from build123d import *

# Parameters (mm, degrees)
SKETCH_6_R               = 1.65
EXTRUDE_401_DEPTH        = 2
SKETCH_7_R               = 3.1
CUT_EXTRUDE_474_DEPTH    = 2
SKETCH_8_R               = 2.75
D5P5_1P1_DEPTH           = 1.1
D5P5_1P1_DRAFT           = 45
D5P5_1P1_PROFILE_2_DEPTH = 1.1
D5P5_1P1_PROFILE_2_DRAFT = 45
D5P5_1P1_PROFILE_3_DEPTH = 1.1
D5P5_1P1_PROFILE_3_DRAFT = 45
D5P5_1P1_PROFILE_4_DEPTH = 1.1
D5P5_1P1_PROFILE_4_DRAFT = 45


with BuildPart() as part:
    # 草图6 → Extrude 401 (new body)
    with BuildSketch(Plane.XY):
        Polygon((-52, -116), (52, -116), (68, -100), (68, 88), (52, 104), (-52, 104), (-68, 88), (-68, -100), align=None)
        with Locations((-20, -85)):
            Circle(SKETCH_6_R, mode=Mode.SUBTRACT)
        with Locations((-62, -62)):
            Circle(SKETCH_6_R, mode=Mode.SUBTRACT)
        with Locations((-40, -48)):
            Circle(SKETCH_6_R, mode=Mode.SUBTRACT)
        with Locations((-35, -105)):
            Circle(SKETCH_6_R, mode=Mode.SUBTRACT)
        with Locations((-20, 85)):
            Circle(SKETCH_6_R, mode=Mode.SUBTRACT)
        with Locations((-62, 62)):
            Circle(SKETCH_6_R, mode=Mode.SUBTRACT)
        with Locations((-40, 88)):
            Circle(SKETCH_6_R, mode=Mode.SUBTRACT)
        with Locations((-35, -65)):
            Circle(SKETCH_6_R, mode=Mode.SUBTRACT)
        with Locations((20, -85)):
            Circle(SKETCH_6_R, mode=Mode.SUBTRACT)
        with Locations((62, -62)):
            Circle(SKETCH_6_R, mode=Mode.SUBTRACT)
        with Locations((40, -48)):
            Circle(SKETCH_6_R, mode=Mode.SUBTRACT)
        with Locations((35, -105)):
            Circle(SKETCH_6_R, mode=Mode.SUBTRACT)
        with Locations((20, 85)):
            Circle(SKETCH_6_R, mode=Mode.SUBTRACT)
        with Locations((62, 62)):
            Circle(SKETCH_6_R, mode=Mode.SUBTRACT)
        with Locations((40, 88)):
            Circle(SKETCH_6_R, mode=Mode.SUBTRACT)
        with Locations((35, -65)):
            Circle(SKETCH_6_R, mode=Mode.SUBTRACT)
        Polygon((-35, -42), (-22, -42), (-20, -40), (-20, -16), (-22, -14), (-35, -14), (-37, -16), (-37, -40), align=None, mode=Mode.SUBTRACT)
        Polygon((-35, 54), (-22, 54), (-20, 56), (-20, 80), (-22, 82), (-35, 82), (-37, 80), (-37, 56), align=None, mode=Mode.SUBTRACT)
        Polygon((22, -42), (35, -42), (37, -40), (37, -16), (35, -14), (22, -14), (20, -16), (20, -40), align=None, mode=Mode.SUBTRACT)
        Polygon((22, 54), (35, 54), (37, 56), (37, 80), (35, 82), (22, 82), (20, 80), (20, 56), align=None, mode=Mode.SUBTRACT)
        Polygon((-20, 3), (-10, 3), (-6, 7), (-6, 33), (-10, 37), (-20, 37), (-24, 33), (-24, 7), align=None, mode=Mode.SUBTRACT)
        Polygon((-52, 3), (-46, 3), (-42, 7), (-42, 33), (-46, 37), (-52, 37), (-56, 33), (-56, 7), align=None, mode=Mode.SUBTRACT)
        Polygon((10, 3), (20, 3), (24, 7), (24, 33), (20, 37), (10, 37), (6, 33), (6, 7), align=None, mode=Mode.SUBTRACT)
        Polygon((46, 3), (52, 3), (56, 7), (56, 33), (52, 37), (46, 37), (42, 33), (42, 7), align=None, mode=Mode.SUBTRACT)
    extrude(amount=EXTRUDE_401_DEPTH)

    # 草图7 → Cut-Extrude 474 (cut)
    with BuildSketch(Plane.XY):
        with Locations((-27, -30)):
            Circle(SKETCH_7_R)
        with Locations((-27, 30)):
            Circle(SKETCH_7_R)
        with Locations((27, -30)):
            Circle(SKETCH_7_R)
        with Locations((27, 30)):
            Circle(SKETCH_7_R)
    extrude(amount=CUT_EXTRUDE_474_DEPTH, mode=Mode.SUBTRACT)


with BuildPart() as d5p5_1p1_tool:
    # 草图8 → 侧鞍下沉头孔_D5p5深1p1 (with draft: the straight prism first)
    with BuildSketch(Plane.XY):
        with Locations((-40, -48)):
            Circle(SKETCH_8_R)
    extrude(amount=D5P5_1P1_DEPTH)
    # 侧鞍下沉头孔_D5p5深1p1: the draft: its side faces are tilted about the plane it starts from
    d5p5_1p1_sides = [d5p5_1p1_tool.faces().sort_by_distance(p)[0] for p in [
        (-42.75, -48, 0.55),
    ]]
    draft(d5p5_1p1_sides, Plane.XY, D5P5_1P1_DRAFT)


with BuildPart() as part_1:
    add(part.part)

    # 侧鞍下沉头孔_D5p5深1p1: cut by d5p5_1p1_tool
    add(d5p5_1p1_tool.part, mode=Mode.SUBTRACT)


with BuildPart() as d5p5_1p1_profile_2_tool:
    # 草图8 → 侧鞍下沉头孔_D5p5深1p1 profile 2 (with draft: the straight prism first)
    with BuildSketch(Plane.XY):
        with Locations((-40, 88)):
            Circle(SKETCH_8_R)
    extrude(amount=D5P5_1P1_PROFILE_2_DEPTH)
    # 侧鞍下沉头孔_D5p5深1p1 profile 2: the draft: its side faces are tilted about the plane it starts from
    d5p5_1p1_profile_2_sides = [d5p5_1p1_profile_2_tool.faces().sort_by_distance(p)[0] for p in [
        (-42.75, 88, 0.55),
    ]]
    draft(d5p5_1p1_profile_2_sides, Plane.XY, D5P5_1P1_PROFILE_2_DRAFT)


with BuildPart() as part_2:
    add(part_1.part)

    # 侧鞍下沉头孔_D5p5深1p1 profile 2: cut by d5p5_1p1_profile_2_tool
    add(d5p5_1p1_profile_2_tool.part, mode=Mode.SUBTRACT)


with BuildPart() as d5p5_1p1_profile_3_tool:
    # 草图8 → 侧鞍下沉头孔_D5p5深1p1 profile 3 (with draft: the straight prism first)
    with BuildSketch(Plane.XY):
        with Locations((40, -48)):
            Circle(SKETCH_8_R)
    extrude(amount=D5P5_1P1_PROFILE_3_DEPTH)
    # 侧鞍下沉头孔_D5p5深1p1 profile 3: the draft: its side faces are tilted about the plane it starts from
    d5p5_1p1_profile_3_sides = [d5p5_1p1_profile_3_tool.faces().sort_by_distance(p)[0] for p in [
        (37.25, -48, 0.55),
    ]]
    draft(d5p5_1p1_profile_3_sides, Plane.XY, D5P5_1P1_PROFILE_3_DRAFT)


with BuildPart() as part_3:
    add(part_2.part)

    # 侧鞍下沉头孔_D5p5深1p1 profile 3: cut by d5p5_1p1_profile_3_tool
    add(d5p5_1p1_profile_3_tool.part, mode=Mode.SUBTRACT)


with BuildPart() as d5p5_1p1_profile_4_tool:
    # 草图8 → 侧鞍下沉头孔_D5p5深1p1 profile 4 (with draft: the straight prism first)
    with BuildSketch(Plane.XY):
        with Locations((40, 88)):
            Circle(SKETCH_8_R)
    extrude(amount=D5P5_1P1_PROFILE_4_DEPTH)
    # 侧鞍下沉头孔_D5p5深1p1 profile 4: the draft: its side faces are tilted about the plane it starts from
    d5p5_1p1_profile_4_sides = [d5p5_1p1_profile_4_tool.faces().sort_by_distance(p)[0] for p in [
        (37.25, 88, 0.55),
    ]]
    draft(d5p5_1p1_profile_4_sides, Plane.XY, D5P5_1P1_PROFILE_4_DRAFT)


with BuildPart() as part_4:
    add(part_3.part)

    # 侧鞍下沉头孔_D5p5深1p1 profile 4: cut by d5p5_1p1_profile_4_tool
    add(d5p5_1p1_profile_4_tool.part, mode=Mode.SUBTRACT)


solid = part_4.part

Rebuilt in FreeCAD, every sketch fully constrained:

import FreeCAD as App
import Part
import Sketcher


def faces_at(feature, points):
    """Names of the faces that lie closest to the given points."""
    faces = feature.Shape.Faces
    near = lambda p: min(range(len(faces)), key=lambda i: faces[i].distToShape(Part.Vertex(*p))[0])
    return sorted({f"Face{near(p) + 1}" for p in points})


def add_polygon(sketch, points):
    """Adds a closed chain of lines whose ends are joined by coincident constraints."""
    first, n = sketch.GeometryCount, len(points)
    for a, b in zip(points, points[1:] + points[:1]):
        sketch.addGeometry(Part.LineSegment(App.Vector(*a, 0), App.Vector(*b, 0)), False)
    for i in range(n):
        sketch.addConstraint(Sketcher.Constraint("Coincident", first + i, 2, first + (i + 1) % n, 1))

doc = App.newDocument("Part")
body = doc.addObject("PartDesign::Body", "Body")

sketch1 = body.newObject("Sketcher::SketchObject", "Sketch")
sketch1.AttachmentSupport = (doc.getObject("XY_Plane"), [""])
sketch1.MapMode = "FlatFace"
add_polygon(sketch1, [(-52, -116), (52, -116), (68, -100), (68, 88), (52, 104), (-52, 104), (-68, 88), (-68, -100)])
sketch1.addGeometry(Part.Circle(App.Vector(-35, -105, 0), App.Vector(0, 0, 1), 1.6), False)
sketch1.addGeometry(Part.Circle(App.Vector(-62, -62, 0), App.Vector(0, 0, 1), 1.6), False)
sketch1.addGeometry(Part.Circle(App.Vector(-35, -65, 0), App.Vector(0, 0, 1), 1.6), False)
sketch1.addGeometry(Part.Circle(App.Vector(-20, -85, 0), App.Vector(0, 0, 1), 1.6), False)
sketch1.addGeometry(Part.Circle(App.Vector(-40, -48, 0), App.Vector(0, 0, 1), 1.6), False)
add_polygon(sketch1, [(-22, -42), (-35, -42), (-37, -40), (-37, -16), (-35, -14), (-22, -14), (-20, -16), (-20, -40)])
sketch1.addGeometry(Part.Circle(App.Vector(20, -85, 0), App.Vector(0, 0, 1), 1.6), False)
sketch1.addGeometry(Part.Circle(App.Vector(35, -105, 0), App.Vector(0, 0, 1), 1.6), False)
sketch1.addGeometry(Part.Circle(App.Vector(35, -65, 0), App.Vector(0, 0, 1), 1.6), False)
sketch1.addGeometry(Part.Circle(App.Vector(62, -62, 0), App.Vector(0, 0, 1), 1.6), False)
add_polygon(sketch1, [(35, -42), (22, -42), (20, -40), (20, -16), (22, -14), (35, -14), (37, -16), (37, -40)])
sketch1.addGeometry(Part.Circle(App.Vector(40, -48, 0), App.Vector(0, 0, 1), 1.6), False)
add_polygon(sketch1, [(-46, 3), (-52, 3), (-56, 7), (-56, 33), (-52, 37), (-46, 37), (-42, 33), (-42, 7)])
add_polygon(sketch1, [(-10, 3), (-20, 3), (-24, 7), (-24, 33), (-20, 37), (-10, 37), (-6, 33), (-6, 7)])
sketch1.addGeometry(Part.Circle(App.Vector(-62, 62, 0), App.Vector(0, 0, 1), 1.6), False)
sketch1.addGeometry(Part.Circle(App.Vector(-40, 88, 0), App.Vector(0, 0, 1), 1.6), False)
add_polygon(sketch1, [(-22, 54), (-35, 54), (-37, 56), (-37, 80), (-35, 82), (-22, 82), (-20, 80), (-20, 56)])
sketch1.addGeometry(Part.Circle(App.Vector(-20, 85, 0), App.Vector(0, 0, 1), 1.6), False)
add_polygon(sketch1, [(20, 3), (10, 3), (6, 7), (6, 33), (10, 37), (20, 37), (24, 33), (24, 7)])
add_polygon(sketch1, [(52, 3), (46, 3), (42, 7), (42, 33), (46, 37), (52, 37), (56, 33), (56, 7)])
add_polygon(sketch1, [(35, 54), (22, 54), (20, 56), (20, 80), (22, 82), (35, 82), (37, 80), (37, 56)])
sketch1.addGeometry(Part.Circle(App.Vector(20, 85, 0), App.Vector(0, 0, 1), 1.6), False)
sketch1.addGeometry(Part.Circle(App.Vector(62, 62, 0), App.Vector(0, 0, 1), 1.6), False)
sketch1.addGeometry(Part.Circle(App.Vector(40, 88, 0), App.Vector(0, 0, 1), 1.6), False)
sketch1.addConstraint(Sketcher.Constraint("Horizontal", 0))
sketch1.addConstraint(Sketcher.Constraint("Vertical", 2))
sketch1.addConstraint(Sketcher.Constraint("Horizontal", 4))
sketch1.addConstraint(Sketcher.Constraint("Vertical", 6))
sketch1.addConstraint(Sketcher.Constraint("Horizontal", 13))
sketch1.addConstraint(Sketcher.Constraint("Vertical", 15))
sketch1.addConstraint(Sketcher.Constraint("Horizontal", 17))
sketch1.addConstraint(Sketcher.Constraint("Vertical", 19))
sketch1.addConstraint(Sketcher.Constraint("Horizontal", 25))
sketch1.addConstraint(Sketcher.Constraint("Vertical", 27))
sketch1.addConstraint(Sketcher.Constraint("Horizontal", 29))
sketch1.addConstraint(Sketcher.Constraint("Vertical", 31))
sketch1.addConstraint(Sketcher.Constraint("Horizontal", 34))
sketch1.addConstraint(Sketcher.Constraint("Vertical", 36))
sketch1.addConstraint(Sketcher.Constraint("Horizontal", 38))
sketch1.addConstraint(Sketcher.Constraint("Vertical", 40))
sketch1.addConstraint(Sketcher.Constraint("Horizontal", 42))
sketch1.addConstraint(Sketcher.Constraint("Vertical", 44))
sketch1.addConstraint(Sketcher.Constraint("Horizontal", 46))
sketch1.addConstraint(Sketcher.Constraint("Vertical", 48))
sketch1.addConstraint(Sketcher.Constraint("Horizontal", 52))
sketch1.addConstraint(Sketcher.Constraint("Vertical", 54))
sketch1.addConstraint(Sketcher.Constraint("Horizontal", 56))
sketch1.addConstraint(Sketcher.Constraint("Vertical", 58))
sketch1.addConstraint(Sketcher.Constraint("Horizontal", 61))
sketch1.addConstraint(Sketcher.Constraint("Vertical", 63))
sketch1.addConstraint(Sketcher.Constraint("Horizontal", 65))
sketch1.addConstraint(Sketcher.Constraint("Vertical", 67))
sketch1.addConstraint(Sketcher.Constraint("Horizontal", 69))
sketch1.addConstraint(Sketcher.Constraint("Vertical", 71))
sketch1.addConstraint(Sketcher.Constraint("Horizontal", 73))
sketch1.addConstraint(Sketcher.Constraint("Vertical", 75))
sketch1.addConstraint(Sketcher.Constraint("Horizontal", 77))
sketch1.addConstraint(Sketcher.Constraint("Vertical", 79))
sketch1.addConstraint(Sketcher.Constraint("Horizontal", 81))
sketch1.addConstraint(Sketcher.Constraint("Vertical", 83))
sketch1.addConstraint(Sketcher.Constraint("Equal", 8, 9))
sketch1.addConstraint(Sketcher.Constraint("Equal", 9, 10))
sketch1.addConstraint(Sketcher.Constraint("Equal", 10, 11))
sketch1.addConstraint(Sketcher.Constraint("Equal", 11, 12))
sketch1.addConstraint(Sketcher.Constraint("Equal", 12, 21))
sketch1.addConstraint(Sketcher.Constraint("Equal", 21, 22))
sketch1.addConstraint(Sketcher.Constraint("Equal", 22, 23))
sketch1.addConstraint(Sketcher.Constraint("Equal", 23, 24))
sketch1.addConstraint(Sketcher.Constraint("Equal", 24, 33))
sketch1.addConstraint(Sketcher.Constraint("Equal", 33, 50))
sketch1.addConstraint(Sketcher.Constraint("Equal", 50, 51))
sketch1.addConstraint(Sketcher.Constraint("Equal", 51, 60))
sketch1.addConstraint(Sketcher.Constraint("Equal", 60, 85))
sketch1.addConstraint(Sketcher.Constraint("Equal", 85, 86))
sketch1.addConstraint(Sketcher.Constraint("Equal", 86, 87))
sketch1.addConstraint(Sketcher.Constraint("Symmetric", 24, 3, 50, 3, -1, 1))
sketch1.addConstraint(Sketcher.Constraint("Symmetric", 21, 3, 60, 3, -1, 1))
sketch1.addConstraint(Sketcher.Constraint("Symmetric", 11, 3, 85, 3, -1, 1))
sketch1.addConstraint(Sketcher.Constraint("Symmetric", 9, 3, 86, 3, -1, 1))
sketch1.addConstraint(Sketcher.Constraint("Symmetric", 11, 3, 21, 3, -2))
sketch1.addConstraint(Sketcher.Constraint("Symmetric", 8, 3, 22, 3, -2))
sketch1.addConstraint(Sketcher.Constraint("Symmetric", 10, 3, 23, 3, -2))
sketch1.addConstraint(Sketcher.Constraint("Symmetric", 9, 3, 24, 3, -2))
sketch1.addConstraint(Sketcher.Constraint("Symmetric", 12, 3, 33, 3, -2))
sketch1.addConstraint(Sketcher.Constraint("Symmetric", 51, 3, 87, 3, -2))
sketch1.addConstraint(Sketcher.Constraint("Symmetric", 2, 2, 5, 2, -2))
sketch1.addConstraint(Sketcher.Constraint("Symmetric", 20, 2, 25, 2, -2))
sketch1.addConstraint(Sketcher.Constraint("Symmetric", 19, 2, 26, 2, -2))
sketch1.addConstraint(Sketcher.Constraint("Symmetric", 17, 2, 28, 2, -2))
sketch1.addConstraint(Sketcher.Constraint("Symmetric", 15, 2, 30, 2, -2))
sketch1.addConstraint(Sketcher.Constraint("Symmetric", 49, 2, 61, 2, -2))
sketch1.addConstraint(Sketcher.Constraint("Symmetric", 48, 2, 62, 2, -2))
sketch1.addConstraint(Sketcher.Constraint("Symmetric", 46, 2, 64, 2, -2))
sketch1.addConstraint(Sketcher.Constraint("Symmetric", 44, 2, 66, 2, -2))
sketch1.addConstraint(Sketcher.Constraint("Symmetric", 41, 2, 69, 2, -2))
sketch1.addConstraint(Sketcher.Constraint("Symmetric", 40, 2, 70, 2, -2))
sketch1.addConstraint(Sketcher.Constraint("Symmetric", 38, 2, 72, 2, -2))
sketch1.addConstraint(Sketcher.Constraint("Symmetric", 36, 2, 74, 2, -2))
sketch1.addConstraint(Sketcher.Constraint("Symmetric", 59, 2, 77, 2, -2))
sketch1.addConstraint(Sketcher.Constraint("Symmetric", 58, 2, 78, 2, -2))
sketch1.addConstraint(Sketcher.Constraint("Symmetric", 56, 2, 80, 2, -2))
sketch1.addConstraint(Sketcher.Constraint("Symmetric", 54, 2, 82, 2, -2))
sketch1.addConstraint(Sketcher.Constraint("Perpendicular", 1, 3))
sketch1.addConstraint(Sketcher.Constraint("Perpendicular", 3, 5))
sketch1.addConstraint(Sketcher.Constraint("Perpendicular", 5, 7))
sketch1.addConstraint(Sketcher.Constraint("Parallel", 7, 14))
sketch1.addConstraint(Sketcher.Constraint("Perpendicular", 14, 16))
sketch1.addConstraint(Sketcher.Constraint("Perpendicular", 16, 18))
sketch1.addConstraint(Sketcher.Constraint("Perpendicular", 18, 20))
sketch1.addConstraint(Sketcher.Constraint("Perpendicular", 20, 26))
sketch1.addConstraint(Sketcher.Constraint("Perpendicular", 26, 28))
sketch1.addConstraint(Sketcher.Constraint("Perpendicular", 28, 30))
sketch1.addConstraint(Sketcher.Constraint("Perpendicular", 30, 32))
sketch1.addConstraint(Sketcher.Constraint("Perpendicular", 32, 35))
sketch1.addConstraint(Sketcher.Constraint("Perpendicular", 35, 37))
sketch1.addConstraint(Sketcher.Constraint("Perpendicular", 37, 39))
sketch1.addConstraint(Sketcher.Constraint("Perpendicular", 39, 41))
sketch1.addConstraint(Sketcher.Constraint("Perpendicular", 41, 43))
sketch1.addConstraint(Sketcher.Constraint("Perpendicular", 43, 45))
sketch1.addConstraint(Sketcher.Constraint("Perpendicular", 45, 47))
sketch1.addConstraint(Sketcher.Constraint("Perpendicular", 47, 49))
sketch1.addConstraint(Sketcher.Constraint("Perpendicular", 49, 53))
sketch1.addConstraint(Sketcher.Constraint("Perpendicular", 53, 55))
sketch1.addConstraint(Sketcher.Constraint("Perpendicular", 55, 57))
sketch1.addConstraint(Sketcher.Constraint("Perpendicular", 57, 59))
sketch1.addConstraint(Sketcher.Constraint("Perpendicular", 62, 64))
sketch1.addConstraint(Sketcher.Constraint("Perpendicular", 64, 66))
sketch1.addConstraint(Sketcher.Constraint("Perpendicular", 66, 68))
sketch1.addConstraint(Sketcher.Constraint("Perpendicular", 70, 72))
sketch1.addConstraint(Sketcher.Constraint("Perpendicular", 72, 74))
sketch1.addConstraint(Sketcher.Constraint("Perpendicular", 74, 76))
sketch1.addConstraint(Sketcher.Constraint("Perpendicular", 78, 80))
sketch1.addConstraint(Sketcher.Constraint("Perpendicular", 80, 82))
sketch1.addConstraint(Sketcher.Constraint("Perpendicular", 82, 84))
sketch1.addConstraint(Sketcher.Constraint("Horizontal", 87, 3, 2, 2))
sketch1.addConstraint(Sketcher.Constraint("Horizontal", 1, 2, 6, 2))
sketch1.addConstraint(Sketcher.Constraint("Horizontal", 15, 2, 18, 2))
sketch1.addConstraint(Sketcher.Constraint("Horizontal", 14, 2, 19, 2))
sketch1.addConstraint(Sketcher.Constraint("Horizontal", 26, 2, 31, 2))
sketch1.addConstraint(Sketcher.Constraint("Horizontal", 36, 2, 39, 2))
sketch1.addConstraint(Sketcher.Constraint("Horizontal", 35, 2, 40, 2))
sketch1.addConstraint(Sketcher.Constraint("Horizontal", 41, 2, 42, 2))
sketch1.addConstraint(Sketcher.Constraint("Horizontal", 40, 2, 43, 2))
sketch1.addConstraint(Sketcher.Constraint("Horizontal", 39, 2, 44, 2))
sketch1.addConstraint(Sketcher.Constraint("Horizontal", 38, 2, 45, 2))
sketch1.addConstraint(Sketcher.Constraint("Horizontal", 44, 2, 47, 2))
sketch1.addConstraint(Sketcher.Constraint("Horizontal", 43, 2, 48, 2))
sketch1.addConstraint(Sketcher.Constraint("Horizontal", 54, 2, 57, 2))
sketch1.addConstraint(Sketcher.Constraint("Horizontal", 53, 2, 58, 2))
sketch1.addConstraint(Sketcher.Constraint("Horizontal", 62, 2, 67, 2))
sketch1.addConstraint(Sketcher.Constraint("Horizontal", 70, 2, 75, 2))
sketch1.addConstraint(Sketcher.Constraint("Horizontal", 78, 2, 83, 2))
sketch1.addConstraint(Sketcher.Constraint("Vertical", 8, 3, 10, 3))
sketch1.addConstraint(Sketcher.Constraint("Vertical", 12, 3, 51, 3))
sketch1.addConstraint(Sketcher.Constraint("Vertical", 0, 2, 3, 2))
sketch1.addConstraint(Sketcher.Constraint("Vertical", 10, 3, 13, 2))
sketch1.addConstraint(Sketcher.Constraint("Vertical", 13, 2, 16, 2))
sketch1.addConstraint(Sketcher.Constraint("Vertical", 60, 3, 18, 2))
sketch1.addConstraint(Sketcher.Constraint("Vertical", 7, 2, 34, 2))
sketch1.addConstraint(Sketcher.Constraint("Vertical", 34, 2, 37, 2))
sketch1.addConstraint(Sketcher.Constraint("Vertical", 19, 2, 42, 2))
sketch1.addConstraint(Sketcher.Constraint("Vertical", 16, 2, 52, 2))
sketch1.addConstraint(Sketcher.Constraint("Vertical", 15, 2, 53, 2))
sketch1.addConstraint(Sketcher.Constraint("Vertical", 52, 2, 55, 2))
sketch1.addConstraint(Sketcher.Constraint("Vertical", 20, 2, 56, 2))
sketch1.addConstraint(Sketcher.Constraint("Equal", 31, 54))
sketch1.addConstraint(Sketcher.Constraint("Diameter", 8, 3.3))
sketch1.addConstraint(Sketcher.Constraint("DistanceX", 0, 1, 0, 2, 104.0))
sketch1.addConstraint(Sketcher.Constraint("DistanceX", 13, 2, 13, 1, 13.0))
sketch1.addConstraint(Sketcher.Constraint("DistanceX", 34, 2, 34, 1, 6.0))
sketch1.addConstraint(Sketcher.Constraint("DistanceX", 42, 2, 42, 1, 10.0))
sketch1.addConstraint(Sketcher.Constraint("DistanceY", 2, 1, 2, 2, 188.0))
sketch1.addConstraint(Sketcher.Constraint("DistanceY", 15, 1, 15, 2, 24.0))
sketch1.addConstraint(Sketcher.Constraint("DistanceY", 36, 1, 36, 2, 26.0))
sketch1.addConstraint(Sketcher.Constraint("DistanceX", 8, 3, -1, 1, 35.0))
sketch1.addConstraint(Sketcher.Constraint("DistanceY", 8, 3, -1, 1, 105.0))
sketch1.addConstraint(Sketcher.Constraint("DistanceX", 9, 3, -1, 1, 62.0))
sketch1.addConstraint(Sketcher.Constraint("DistanceY", 9, 3, -1, 1, 62.0))
sketch1.addConstraint(Sketcher.Constraint("DistanceY", 10, 3, -1, 1, 65.0))
sketch1.addConstraint(Sketcher.Constraint("DistanceX", 11, 3, -1, 1, 20.0))
sketch1.addConstraint(Sketcher.Constraint("DistanceY", 11, 3, -1, 1, 85.0))
sketch1.addConstraint(Sketcher.Constraint("DistanceX", 12, 3, -1, 1, 40.0))
sketch1.addConstraint(Sketcher.Constraint("DistanceY", 12, 3, -1, 1, 48.0))
sketch1.addConstraint(Sketcher.Constraint("DistanceY", -1, 1, 51, 3, 88.0))
sketch1.addConstraint(Sketcher.Constraint("DistanceY", 0, 2, -1, 1, 116.0))
sketch1.addConstraint(Sketcher.Constraint("DistanceY", 13, 2, -1, 1, 42.0))
sketch1.addConstraint(Sketcher.Constraint("DistanceY", -1, 1, 34, 2, 3.0))
sketch1.addConstraint(Sketcher.Constraint("DistanceX", 35, 2, -1, 1, 56.0))
sketch1.addConstraint(Sketcher.Constraint("DistanceY", -1, 1, 52, 2, 54.0))
pad1 = body.newObject("PartDesign::Pad", "Pad")
pad1.Profile = sketch1
pad1.Length = 2

sketch2 = body.newObject("Sketcher::SketchObject", "Sketch001")
sketch2.AttachmentSupport = (doc.getObject("XY_Plane"), [""])
sketch2.MapMode = "FlatFace"
sketch2.addGeometry(Part.Circle(App.Vector(-27, -30, 0), App.Vector(0, 0, 1), 3.1), False)
sketch2.addGeometry(Part.Circle(App.Vector(-27, 30, 0), App.Vector(0, 0, 1), 3.1), False)
sketch2.addGeometry(Part.Circle(App.Vector(27, -30, 0), App.Vector(0, 0, 1), 3.1), False)
sketch2.addGeometry(Part.Circle(App.Vector(27, 30, 0), App.Vector(0, 0, 1), 3.1), False)
sketch2.addConstraint(Sketcher.Constraint("Equal", 0, 1))
sketch2.addConstraint(Sketcher.Constraint("Equal", 1, 2))
sketch2.addConstraint(Sketcher.Constraint("Equal", 2, 3))
sketch2.addConstraint(Sketcher.Constraint("Symmetric", 1, 3, 2, 3, -1, 1))
sketch2.addConstraint(Sketcher.Constraint("Symmetric", 0, 3, 3, 3, -1, 1))
sketch2.addConstraint(Sketcher.Constraint("Symmetric", 0, 3, 2, 3, -2))
sketch2.addConstraint(Sketcher.Constraint("Diameter", 0, 6.2))
sketch2.addConstraint(Sketcher.Constraint("DistanceX", 0, 3, -1, 1, 27.0))
sketch2.addConstraint(Sketcher.Constraint("DistanceY", 0, 3, -1, 1, 30.0))
pocket1 = body.newObject("PartDesign::Pocket", "Pocket")
pocket1.Profile = sketch2
pocket1.Length = 2
pocket1.Reversed = True
body2 = doc.addObject("PartDesign::Body", "Body001")

sketch3 = body2.newObject("Sketcher::SketchObject", "Sketch002")
sketch3.AttachmentSupport = (doc.getObject("XY_Plane001"), [""])
sketch3.MapMode = "FlatFace"
sketch3.addGeometry(Part.Circle(App.Vector(-40, -48, 0), App.Vector(0, 0, 1), 2.8), False)
sketch3.addConstraint(Sketcher.Constraint("Diameter", 0, 5.5))
sketch3.addConstraint(Sketcher.Constraint("DistanceX", 0, 3, -1, 1, 40.0))
sketch3.addConstraint(Sketcher.Constraint("DistanceY", 0, 3, -1, 1, 48.0))
pad2 = body2.newObject("PartDesign::Pad", "Pad001")
pad2.Profile = sketch3
pad2.Length = 1.1
doc.recompute()

draft = body2.newObject("PartDesign::Draft", "Draft")
draft.Base = (pad2, faces_at(pad2, [(-42.75, -48, 0.55)]))
draft.NeutralPlane = (doc.getObject("XY_Plane001"), [""])
draft.Angle = 45
draft.Reversed = False
doc.recompute()

boolean = body.newObject("PartDesign::Boolean", "Boolean")
boolean.Type = "Cut"
boolean.addObjects([body2])
body3 = doc.addObject("PartDesign::Body", "Body002")

sketch4 = body3.newObject("Sketcher::SketchObject", "Sketch003")
sketch4.AttachmentSupport = (doc.getObject("XY_Plane002"), [""])
sketch4.MapMode = "FlatFace"
sketch4.addGeometry(Part.Circle(App.Vector(-40, 88, 0), App.Vector(0, 0, 1), 2.8), False)
sketch4.addConstraint(Sketcher.Constraint("Diameter", 0, 5.5))
sketch4.addConstraint(Sketcher.Constraint("DistanceX", 0, 3, -1, 1, 40.0))
sketch4.addConstraint(Sketcher.Constraint("DistanceY", -1, 1, 0, 3, 88.0))
pad3 = body3.newObject("PartDesign::Pad", "Pad002")
pad3.Profile = sketch4
pad3.Length = 1.1
doc.recompute()

draft2 = body3.newObject("PartDesign::Draft", "Draft001")
draft2.Base = (pad3, faces_at(pad3, [(-42.75, 88, 0.55)]))
draft2.NeutralPlane = (doc.getObject("XY_Plane002"), [""])
draft2.Angle = 45
draft2.Reversed = False
doc.recompute()

boolean2 = body.newObject("PartDesign::Boolean", "Boolean001")
boolean2.Type = "Cut"
boolean2.addObjects([body3])
body4 = doc.addObject("PartDesign::Body", "Body003")

sketch5 = body4.newObject("Sketcher::SketchObject", "Sketch004")
sketch5.AttachmentSupport = (doc.getObject("XY_Plane003"), [""])
sketch5.MapMode = "FlatFace"
sketch5.addGeometry(Part.Circle(App.Vector(40, -48, 0), App.Vector(0, 0, 1), 2.8), False)
sketch5.addConstraint(Sketcher.Constraint("Diameter", 0, 5.5))
sketch5.addConstraint(Sketcher.Constraint("DistanceX", -1, 1, 0, 3, 40.0))
sketch5.addConstraint(Sketcher.Constraint("DistanceY", 0, 3, -1, 1, 48.0))
pad4 = body4.newObject("PartDesign::Pad", "Pad003")
pad4.Profile = sketch5
pad4.Length = 1.1
doc.recompute()

draft3 = body4.newObject("PartDesign::Draft", "Draft002")
draft3.Base = (pad4, faces_at(pad4, [(37.25, -48, 0.55)]))
draft3.NeutralPlane = (doc.getObject("XY_Plane003"), [""])
draft3.Angle = 45
draft3.Reversed = False
doc.recompute()

boolean3 = body.newObject("PartDesign::Boolean", "Boolean002")
boolean3.Type = "Cut"
boolean3.addObjects([body4])
body5 = doc.addObject("PartDesign::Body", "Body004")

sketch6 = body5.newObject("Sketcher::SketchObject", "Sketch005")
sketch6.AttachmentSupport = (doc.getObject("XY_Plane004"), [""])
sketch6.MapMode = "FlatFace"
sketch6.addGeometry(Part.Circle(App.Vector(40, 88, 0), App.Vector(0, 0, 1), 2.8), False)
sketch6.addConstraint(Sketcher.Constraint("Diameter", 0, 5.5))
sketch6.addConstraint(Sketcher.Constraint("DistanceX", -1, 1, 0, 3, 40.0))
sketch6.addConstraint(Sketcher.Constraint("DistanceY", -1, 1, 0, 3, 88.0))
pad5 = body5.newObject("PartDesign::Pad", "Pad004")
pad5.Profile = sketch6
pad5.Length = 1.1
doc.recompute()

draft4 = body5.newObject("PartDesign::Draft", "Draft003")
draft4.Base = (pad5, faces_at(pad5, [(37.25, 88, 0.55)]))
draft4.NeutralPlane = (doc.getObject("XY_Plane004"), [""])
draft4.Angle = 45
draft4.Reversed = False
doc.recompute()

boolean4 = body.newObject("PartDesign::Boolean", "Boolean003")
boolean4.Type = "Cut"
boolean4.addObjects([body5])

doc.recompute()
